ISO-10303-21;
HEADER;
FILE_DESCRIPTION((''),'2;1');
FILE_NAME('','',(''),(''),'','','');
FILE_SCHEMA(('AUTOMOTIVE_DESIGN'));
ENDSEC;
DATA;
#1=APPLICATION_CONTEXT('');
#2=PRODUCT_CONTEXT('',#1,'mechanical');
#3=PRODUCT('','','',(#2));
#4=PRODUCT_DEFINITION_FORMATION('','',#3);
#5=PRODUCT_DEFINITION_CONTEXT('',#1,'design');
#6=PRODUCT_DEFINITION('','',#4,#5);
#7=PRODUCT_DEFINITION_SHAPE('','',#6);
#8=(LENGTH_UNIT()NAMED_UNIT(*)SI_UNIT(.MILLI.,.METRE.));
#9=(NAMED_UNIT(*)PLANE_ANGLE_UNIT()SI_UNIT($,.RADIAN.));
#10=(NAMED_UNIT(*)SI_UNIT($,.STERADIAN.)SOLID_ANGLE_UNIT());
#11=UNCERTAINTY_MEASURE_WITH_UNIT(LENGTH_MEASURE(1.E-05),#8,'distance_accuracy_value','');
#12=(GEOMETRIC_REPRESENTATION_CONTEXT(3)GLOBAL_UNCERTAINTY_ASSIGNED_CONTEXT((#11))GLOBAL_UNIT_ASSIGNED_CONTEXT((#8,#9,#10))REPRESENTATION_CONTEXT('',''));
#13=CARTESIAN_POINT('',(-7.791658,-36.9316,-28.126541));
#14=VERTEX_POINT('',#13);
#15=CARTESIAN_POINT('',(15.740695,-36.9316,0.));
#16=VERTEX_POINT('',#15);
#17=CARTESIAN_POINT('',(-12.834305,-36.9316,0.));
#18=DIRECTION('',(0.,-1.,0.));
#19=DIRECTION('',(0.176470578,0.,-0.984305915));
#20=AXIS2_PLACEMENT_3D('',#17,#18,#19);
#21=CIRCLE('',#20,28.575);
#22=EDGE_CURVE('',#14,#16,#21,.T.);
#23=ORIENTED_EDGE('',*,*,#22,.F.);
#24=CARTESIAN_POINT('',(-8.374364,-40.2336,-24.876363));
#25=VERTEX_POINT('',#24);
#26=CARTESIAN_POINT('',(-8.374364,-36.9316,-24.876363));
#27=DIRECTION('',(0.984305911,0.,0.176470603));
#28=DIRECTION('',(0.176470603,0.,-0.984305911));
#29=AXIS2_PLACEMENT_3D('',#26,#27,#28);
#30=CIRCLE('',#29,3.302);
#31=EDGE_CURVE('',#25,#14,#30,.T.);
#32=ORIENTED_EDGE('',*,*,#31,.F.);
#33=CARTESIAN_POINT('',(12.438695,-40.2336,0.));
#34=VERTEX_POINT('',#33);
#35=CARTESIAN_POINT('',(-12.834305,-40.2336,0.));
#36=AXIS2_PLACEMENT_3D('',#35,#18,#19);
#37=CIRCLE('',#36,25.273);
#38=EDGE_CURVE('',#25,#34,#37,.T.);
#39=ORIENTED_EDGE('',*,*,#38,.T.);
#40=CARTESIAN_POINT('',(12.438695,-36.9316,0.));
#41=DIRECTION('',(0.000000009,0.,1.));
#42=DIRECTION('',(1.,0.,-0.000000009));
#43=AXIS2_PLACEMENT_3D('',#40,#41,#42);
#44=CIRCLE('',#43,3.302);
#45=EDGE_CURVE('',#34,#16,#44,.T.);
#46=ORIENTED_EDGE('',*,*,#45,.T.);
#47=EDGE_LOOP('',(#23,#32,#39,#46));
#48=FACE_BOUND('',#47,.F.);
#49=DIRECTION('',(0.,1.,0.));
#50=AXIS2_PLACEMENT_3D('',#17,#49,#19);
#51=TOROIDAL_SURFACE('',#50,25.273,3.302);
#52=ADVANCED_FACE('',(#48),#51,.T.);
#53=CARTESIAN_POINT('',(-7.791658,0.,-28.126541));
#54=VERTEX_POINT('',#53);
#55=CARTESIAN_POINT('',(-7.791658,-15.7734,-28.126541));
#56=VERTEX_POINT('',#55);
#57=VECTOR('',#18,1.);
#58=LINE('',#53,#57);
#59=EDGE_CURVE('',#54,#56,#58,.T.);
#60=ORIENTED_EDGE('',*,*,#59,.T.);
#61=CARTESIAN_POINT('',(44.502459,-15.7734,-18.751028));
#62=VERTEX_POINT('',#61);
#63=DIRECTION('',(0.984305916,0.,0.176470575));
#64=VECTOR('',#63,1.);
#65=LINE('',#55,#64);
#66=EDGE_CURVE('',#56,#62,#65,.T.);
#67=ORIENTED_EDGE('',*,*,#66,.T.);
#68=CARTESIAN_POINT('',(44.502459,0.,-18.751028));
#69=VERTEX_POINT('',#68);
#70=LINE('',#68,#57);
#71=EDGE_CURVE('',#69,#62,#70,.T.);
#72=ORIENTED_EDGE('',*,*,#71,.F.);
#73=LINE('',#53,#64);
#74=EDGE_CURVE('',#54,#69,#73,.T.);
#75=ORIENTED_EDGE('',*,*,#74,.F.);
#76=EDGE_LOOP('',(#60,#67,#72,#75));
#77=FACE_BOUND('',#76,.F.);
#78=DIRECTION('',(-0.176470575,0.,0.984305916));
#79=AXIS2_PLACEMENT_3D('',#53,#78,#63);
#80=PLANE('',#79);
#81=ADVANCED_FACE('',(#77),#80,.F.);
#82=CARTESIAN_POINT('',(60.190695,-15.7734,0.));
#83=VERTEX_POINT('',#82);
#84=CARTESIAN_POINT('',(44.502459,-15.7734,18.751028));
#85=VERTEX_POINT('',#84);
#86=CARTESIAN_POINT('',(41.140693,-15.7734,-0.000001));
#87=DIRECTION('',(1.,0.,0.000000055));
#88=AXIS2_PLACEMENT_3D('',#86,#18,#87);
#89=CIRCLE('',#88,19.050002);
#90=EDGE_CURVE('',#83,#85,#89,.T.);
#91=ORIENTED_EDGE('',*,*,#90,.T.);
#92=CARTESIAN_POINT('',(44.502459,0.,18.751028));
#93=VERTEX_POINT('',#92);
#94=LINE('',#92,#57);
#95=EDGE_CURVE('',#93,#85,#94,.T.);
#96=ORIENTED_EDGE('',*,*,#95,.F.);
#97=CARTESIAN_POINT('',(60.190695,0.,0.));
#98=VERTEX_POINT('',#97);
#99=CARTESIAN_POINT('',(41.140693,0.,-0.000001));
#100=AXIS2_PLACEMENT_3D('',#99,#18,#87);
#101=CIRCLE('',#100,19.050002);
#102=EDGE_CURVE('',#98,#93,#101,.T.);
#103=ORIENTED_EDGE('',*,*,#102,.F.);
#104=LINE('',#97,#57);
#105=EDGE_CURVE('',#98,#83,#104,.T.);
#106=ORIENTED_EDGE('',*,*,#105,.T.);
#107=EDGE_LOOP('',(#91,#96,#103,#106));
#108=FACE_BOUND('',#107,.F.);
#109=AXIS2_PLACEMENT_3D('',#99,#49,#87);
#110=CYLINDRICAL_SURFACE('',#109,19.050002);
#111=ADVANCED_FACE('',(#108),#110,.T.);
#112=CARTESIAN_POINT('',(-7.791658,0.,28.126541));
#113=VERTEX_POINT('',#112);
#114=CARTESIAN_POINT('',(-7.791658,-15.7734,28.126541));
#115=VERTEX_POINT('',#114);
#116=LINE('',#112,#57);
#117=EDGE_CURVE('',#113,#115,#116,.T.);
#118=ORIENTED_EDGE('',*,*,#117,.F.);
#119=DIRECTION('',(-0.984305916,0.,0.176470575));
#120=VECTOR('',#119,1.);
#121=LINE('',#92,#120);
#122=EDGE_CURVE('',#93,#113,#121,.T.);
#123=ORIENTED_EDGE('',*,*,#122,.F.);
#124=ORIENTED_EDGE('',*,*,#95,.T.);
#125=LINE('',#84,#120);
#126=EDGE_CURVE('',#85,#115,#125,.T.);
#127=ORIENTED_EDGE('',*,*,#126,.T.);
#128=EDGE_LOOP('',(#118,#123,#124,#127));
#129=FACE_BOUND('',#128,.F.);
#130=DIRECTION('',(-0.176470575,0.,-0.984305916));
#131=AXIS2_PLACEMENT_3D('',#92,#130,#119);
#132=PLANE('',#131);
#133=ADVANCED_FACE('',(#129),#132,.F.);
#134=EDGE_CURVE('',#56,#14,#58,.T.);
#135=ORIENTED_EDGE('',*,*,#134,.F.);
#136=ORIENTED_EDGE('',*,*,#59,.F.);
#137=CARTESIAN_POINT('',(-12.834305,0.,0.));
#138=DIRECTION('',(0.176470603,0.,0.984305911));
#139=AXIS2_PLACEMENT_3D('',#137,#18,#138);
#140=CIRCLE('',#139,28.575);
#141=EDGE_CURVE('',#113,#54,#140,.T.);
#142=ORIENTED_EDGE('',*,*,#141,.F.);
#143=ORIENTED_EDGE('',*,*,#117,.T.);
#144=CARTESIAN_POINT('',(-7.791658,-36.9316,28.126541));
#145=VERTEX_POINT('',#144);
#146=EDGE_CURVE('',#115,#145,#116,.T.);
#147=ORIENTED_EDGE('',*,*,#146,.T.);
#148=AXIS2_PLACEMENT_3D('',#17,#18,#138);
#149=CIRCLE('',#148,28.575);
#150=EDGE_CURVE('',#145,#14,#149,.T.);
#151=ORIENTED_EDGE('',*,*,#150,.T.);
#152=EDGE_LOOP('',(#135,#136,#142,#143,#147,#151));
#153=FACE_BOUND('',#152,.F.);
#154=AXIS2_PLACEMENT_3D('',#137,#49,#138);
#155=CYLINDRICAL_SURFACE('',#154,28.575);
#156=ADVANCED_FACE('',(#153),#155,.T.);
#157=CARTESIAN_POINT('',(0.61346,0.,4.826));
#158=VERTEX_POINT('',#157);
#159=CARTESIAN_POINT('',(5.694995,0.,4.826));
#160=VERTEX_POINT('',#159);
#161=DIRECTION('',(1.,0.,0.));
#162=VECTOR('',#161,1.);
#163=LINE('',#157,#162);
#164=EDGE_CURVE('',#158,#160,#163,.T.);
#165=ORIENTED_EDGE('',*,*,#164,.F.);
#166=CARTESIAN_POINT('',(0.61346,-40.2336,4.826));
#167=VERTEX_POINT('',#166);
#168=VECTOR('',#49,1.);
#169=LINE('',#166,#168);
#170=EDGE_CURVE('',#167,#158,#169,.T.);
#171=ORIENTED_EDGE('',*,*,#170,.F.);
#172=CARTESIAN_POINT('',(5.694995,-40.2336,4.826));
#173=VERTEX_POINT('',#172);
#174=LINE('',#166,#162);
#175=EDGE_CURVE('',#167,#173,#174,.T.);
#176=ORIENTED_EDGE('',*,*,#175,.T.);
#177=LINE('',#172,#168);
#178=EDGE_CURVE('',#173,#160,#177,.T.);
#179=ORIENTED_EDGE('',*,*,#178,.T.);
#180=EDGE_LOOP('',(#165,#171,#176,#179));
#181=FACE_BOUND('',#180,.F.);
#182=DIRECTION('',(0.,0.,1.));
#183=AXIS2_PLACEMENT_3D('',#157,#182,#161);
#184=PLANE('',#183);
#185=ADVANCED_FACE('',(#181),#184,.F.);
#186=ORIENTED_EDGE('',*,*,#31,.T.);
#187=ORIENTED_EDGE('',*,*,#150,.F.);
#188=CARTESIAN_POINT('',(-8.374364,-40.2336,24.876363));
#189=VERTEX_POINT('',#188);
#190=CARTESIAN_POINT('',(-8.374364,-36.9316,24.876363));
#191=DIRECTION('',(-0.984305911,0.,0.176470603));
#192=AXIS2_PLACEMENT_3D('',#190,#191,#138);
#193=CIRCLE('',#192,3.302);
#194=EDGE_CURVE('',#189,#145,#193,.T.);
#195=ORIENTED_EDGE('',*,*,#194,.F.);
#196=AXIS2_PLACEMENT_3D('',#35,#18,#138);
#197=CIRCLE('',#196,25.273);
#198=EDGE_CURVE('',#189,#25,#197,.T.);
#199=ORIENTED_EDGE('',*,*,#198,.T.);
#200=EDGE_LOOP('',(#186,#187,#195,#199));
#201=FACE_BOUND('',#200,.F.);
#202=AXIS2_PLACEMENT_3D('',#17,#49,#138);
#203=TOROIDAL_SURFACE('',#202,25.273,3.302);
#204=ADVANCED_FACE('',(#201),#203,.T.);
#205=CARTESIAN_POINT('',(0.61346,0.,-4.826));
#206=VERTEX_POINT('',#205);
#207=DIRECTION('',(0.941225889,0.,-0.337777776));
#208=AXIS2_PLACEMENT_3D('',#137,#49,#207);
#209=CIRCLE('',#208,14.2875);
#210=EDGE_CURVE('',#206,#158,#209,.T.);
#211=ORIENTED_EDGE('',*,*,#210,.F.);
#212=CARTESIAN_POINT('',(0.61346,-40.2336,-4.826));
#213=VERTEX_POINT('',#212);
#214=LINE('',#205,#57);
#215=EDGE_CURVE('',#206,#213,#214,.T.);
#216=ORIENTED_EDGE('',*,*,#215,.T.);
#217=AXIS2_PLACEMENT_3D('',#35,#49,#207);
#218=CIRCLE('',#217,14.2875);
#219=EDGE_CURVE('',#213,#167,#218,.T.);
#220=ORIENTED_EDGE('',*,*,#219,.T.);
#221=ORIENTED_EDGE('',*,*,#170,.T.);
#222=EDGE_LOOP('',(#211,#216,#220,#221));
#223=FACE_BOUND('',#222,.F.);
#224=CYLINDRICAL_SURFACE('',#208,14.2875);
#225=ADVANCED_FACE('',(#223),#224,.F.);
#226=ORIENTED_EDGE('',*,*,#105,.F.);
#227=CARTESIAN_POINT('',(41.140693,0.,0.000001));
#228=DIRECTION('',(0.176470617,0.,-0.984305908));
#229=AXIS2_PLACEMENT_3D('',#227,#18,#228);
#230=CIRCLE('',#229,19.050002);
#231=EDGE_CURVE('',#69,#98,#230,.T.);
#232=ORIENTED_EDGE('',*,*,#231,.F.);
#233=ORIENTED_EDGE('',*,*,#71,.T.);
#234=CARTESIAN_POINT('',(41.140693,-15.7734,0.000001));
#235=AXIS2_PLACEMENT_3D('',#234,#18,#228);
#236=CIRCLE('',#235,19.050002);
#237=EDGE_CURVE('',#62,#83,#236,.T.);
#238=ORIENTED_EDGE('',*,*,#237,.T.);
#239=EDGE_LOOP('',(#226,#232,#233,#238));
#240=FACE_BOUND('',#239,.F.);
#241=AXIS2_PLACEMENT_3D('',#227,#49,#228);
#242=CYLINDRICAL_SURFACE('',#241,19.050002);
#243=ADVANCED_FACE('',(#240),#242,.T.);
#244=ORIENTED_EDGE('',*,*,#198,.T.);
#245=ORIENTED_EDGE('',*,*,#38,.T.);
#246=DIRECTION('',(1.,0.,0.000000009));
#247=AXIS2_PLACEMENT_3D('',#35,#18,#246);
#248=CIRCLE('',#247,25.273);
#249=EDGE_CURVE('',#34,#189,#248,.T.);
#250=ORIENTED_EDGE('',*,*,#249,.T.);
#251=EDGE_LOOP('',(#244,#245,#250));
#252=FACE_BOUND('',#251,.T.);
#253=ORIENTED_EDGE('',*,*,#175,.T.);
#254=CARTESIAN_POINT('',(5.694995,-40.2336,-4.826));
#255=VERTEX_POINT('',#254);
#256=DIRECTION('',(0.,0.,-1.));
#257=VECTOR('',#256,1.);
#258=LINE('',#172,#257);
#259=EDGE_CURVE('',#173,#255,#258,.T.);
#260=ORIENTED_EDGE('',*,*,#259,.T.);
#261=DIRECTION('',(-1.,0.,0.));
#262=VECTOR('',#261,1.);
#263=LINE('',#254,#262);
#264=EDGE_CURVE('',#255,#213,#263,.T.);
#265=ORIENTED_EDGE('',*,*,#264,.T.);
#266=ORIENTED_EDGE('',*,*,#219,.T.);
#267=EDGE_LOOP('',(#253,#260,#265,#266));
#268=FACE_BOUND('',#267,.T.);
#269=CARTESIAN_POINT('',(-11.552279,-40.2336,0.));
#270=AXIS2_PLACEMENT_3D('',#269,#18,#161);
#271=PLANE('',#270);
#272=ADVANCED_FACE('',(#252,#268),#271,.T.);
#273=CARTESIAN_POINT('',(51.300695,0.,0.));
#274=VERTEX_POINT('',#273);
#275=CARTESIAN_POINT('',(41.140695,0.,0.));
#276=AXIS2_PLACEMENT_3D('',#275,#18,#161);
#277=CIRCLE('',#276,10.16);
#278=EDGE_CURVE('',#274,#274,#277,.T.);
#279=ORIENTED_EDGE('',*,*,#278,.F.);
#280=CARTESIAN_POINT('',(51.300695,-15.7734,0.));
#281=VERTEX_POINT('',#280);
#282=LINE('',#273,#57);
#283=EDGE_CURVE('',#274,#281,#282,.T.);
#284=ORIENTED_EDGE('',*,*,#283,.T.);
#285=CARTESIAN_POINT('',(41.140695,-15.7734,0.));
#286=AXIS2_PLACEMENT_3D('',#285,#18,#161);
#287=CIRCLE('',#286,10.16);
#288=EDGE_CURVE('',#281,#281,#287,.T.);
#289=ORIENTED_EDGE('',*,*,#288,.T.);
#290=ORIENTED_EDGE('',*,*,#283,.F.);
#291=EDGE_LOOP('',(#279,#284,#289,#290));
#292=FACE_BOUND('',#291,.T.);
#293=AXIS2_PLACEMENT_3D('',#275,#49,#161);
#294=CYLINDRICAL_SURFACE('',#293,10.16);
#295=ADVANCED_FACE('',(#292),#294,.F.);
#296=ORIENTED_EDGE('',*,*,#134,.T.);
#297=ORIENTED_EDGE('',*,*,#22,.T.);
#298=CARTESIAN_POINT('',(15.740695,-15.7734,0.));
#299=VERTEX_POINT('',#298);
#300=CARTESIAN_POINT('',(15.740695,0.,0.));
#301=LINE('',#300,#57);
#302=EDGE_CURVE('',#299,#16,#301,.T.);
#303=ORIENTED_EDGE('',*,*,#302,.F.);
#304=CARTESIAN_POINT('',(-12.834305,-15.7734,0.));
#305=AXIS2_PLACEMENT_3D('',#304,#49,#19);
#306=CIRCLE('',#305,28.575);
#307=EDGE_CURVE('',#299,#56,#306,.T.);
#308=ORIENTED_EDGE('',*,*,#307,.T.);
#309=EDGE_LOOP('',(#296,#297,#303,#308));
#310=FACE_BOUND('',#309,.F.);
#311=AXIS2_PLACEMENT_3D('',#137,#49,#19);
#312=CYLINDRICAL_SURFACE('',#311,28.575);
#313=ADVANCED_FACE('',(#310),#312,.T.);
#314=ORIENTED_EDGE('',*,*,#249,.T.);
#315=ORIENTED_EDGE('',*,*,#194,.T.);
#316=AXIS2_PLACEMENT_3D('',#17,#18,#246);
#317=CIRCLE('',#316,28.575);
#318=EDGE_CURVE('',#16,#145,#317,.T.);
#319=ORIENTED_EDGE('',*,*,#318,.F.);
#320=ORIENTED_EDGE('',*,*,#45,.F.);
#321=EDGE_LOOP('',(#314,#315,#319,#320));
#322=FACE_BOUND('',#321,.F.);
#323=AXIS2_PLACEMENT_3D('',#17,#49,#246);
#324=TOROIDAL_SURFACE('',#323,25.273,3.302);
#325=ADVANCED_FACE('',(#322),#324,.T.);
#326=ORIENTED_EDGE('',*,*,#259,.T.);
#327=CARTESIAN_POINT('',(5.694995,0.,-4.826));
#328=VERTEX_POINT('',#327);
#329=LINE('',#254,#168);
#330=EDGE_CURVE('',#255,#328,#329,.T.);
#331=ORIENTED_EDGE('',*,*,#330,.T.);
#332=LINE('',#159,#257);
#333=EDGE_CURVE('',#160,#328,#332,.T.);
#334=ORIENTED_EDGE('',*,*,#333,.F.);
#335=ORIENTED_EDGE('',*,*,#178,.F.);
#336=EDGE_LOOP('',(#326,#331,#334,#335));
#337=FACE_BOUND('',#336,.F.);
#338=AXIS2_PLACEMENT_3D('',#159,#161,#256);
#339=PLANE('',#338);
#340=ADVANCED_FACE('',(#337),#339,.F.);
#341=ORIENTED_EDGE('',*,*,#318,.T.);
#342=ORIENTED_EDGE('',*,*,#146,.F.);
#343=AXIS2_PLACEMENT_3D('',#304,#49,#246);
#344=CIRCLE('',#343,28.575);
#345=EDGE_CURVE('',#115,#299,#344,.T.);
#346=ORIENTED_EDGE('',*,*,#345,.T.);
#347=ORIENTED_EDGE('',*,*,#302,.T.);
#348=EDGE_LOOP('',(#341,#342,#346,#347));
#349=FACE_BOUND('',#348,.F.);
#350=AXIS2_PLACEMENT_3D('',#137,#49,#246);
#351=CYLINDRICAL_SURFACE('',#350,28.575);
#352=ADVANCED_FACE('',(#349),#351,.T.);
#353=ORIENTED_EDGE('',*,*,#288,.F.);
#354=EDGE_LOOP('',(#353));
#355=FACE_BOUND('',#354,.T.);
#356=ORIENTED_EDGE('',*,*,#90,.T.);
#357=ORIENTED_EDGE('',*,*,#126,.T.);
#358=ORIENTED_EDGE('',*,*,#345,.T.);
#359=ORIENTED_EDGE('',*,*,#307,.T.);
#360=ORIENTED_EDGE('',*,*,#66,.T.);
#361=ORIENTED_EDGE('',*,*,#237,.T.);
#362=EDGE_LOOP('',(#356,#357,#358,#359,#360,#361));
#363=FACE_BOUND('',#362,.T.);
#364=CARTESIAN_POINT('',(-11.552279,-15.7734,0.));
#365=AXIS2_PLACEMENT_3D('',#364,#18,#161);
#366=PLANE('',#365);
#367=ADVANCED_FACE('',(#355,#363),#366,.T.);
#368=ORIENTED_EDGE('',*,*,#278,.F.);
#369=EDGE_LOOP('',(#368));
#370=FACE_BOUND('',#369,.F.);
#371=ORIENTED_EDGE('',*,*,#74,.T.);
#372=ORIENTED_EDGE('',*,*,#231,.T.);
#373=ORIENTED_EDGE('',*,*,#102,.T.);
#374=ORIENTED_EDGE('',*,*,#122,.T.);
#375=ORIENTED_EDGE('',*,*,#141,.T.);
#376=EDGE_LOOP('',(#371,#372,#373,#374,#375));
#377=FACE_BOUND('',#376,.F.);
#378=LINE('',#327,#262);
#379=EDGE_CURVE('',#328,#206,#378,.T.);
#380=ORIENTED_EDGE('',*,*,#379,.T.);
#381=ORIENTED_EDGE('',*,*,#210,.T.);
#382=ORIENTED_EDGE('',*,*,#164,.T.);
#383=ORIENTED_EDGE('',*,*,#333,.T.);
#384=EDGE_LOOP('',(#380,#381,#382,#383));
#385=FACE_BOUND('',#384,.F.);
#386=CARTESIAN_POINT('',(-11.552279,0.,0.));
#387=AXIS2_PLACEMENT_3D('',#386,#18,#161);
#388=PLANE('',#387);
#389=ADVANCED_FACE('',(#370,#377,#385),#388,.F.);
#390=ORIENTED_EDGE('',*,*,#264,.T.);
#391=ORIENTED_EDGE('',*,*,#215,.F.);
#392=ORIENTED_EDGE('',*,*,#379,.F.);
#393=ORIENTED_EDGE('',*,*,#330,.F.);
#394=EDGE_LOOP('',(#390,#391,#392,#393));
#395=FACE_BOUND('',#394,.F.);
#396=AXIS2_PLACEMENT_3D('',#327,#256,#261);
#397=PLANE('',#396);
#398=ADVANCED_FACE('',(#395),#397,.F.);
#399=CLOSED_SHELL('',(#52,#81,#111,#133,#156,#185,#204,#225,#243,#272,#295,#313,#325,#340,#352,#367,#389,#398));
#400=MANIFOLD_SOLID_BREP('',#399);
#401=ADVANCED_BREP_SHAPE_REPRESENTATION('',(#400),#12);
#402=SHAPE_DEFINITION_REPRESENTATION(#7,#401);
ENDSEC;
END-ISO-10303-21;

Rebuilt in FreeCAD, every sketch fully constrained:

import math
import FreeCAD as App
import Part
import Sketcher

V = App.Vector
Q = App.Units.Quantity


def edges_at(feature, points):
    """Names of the edges that pass closest to the given points."""
    edges = feature.Shape.Edges
    near = lambda p: min(range(len(edges)), key=lambda i: edges[i].distToShape(Part.Vertex(*p))[0])
    return sorted({f"Edge{near(p) + 1}" for p in points})

doc = App.newDocument("Part")
body = doc.addObject("PartDesign::Body", "Body")

# Sketch on XZ plane
sketch1 = body.newObject("Sketcher::SketchObject", "Sketch")
sketch1.AttachmentSupport = (doc.getObject("XZ_Plane"), [""])
sketch1.MapMode = "FlatFace"
sketch1.addGeometry(Part.ArcOfCircle(Part.Circle(V(-13, 0, 0), V(0, 0, 1), 29), math.radians(-80), math.radians(0)), False)
sketch1.addGeometry(Part.ArcOfCircle(Part.Circle(V(-13, 0, 0), V(0, 0, 1), 29), math.radians(0), math.radians(80)), False)
sketch1.addGeometry(Part.ArcOfCircle(Part.Circle(V(-13, 0, 0), V(0, 0, 1), 29), math.radians(80), math.radians(280)), False)
sketch1.addGeometry(Part.LineSegment(V(6, -5, 0), V(1, -5, 0)), False)
sketch1.addGeometry(Part.ArcOfCircle(Part.Circle(V(-13, 0, 0), V(0, 0, 1), 14), math.radians(20), math.radians(340)), False)
sketch1.addGeometry(Part.LineSegment(V(1, 5, 0), V(6, 5, 0)), False)
sketch1.addGeometry(Part.LineSegment(V(6, 5, 0), V(6, -5, 0)), False)
sketch1.addConstraint(Sketcher.Constraint("Tangent", 0, 2, 1, 1))
sketch1.addConstraint(Sketcher.Constraint("Tangent", 1, 2, 2, 1))
sketch1.addConstraint(Sketcher.Constraint("Tangent", 2, 2, 0, 1))
sketch1.addConstraint(Sketcher.Constraint("Coincident", 3, 2, 4, 2))
sketch1.addConstraint(Sketcher.Constraint("Coincident", 4, 1, 5, 1))
sketch1.addConstraint(Sketcher.Constraint("Coincident", 5, 2, 6, 1))
sketch1.addConstraint(Sketcher.Constraint("Coincident", 6, 2, 3, 1))
sketch1.addConstraint(Sketcher.Constraint("Horizontal", 3))
sketch1.addConstraint(Sketcher.Constraint("Horizontal", 5))
sketch1.addConstraint(Sketcher.Constraint("Vertical", 6))
sketch1.addConstraint(Sketcher.Constraint("Coincident", 4, 3, 0, 3))
sketch1.addConstraint(Sketcher.Constraint("Symmetric", 1, 2, 2, 2, -1))
sketch1.addConstraint(Sketcher.Constraint("PointOnObject", 0, 2, -1))
sketch1.addConstraint(Sketcher.Constraint("Vertical", 3, 2, 4, 1))
sketch1.addConstraint(Sketcher.Constraint("Radius", 0, Q("1.125 in")))
sketch1.addConstraint(Sketcher.Constraint("Radius", 4, Q("0.5625 in")))
sketch1.addConstraint(Sketcher.Constraint("DistanceY", 6, 2, 6, 1, Q("0.38 in")))
sketch1.addConstraint(Sketcher.Constraint("DistanceX", 5, 2, 0, 2, Q("0.3955 in")))
sketch1.addConstraint(Sketcher.Constraint("DistanceX", 1, 2, -1, 1, Q("7.791658 mm")))
sketch1.addConstraint(Sketcher.Constraint("DistanceY", -1, 1, 1, 2, Q("28.126541 mm")))
pad1 = body.newObject("PartDesign::Pad", "Pad")
pad1.Profile = sketch1
pad1.Length = Q("1.584 in")

# Sketch on XZ plane
sketch2 = body.newObject("Sketcher::SketchObject", "Sketch001")
sketch2.AttachmentSupport = (doc.getObject("XZ_Plane"), [""])
sketch2.MapMode = "FlatFace"
sketch2.addGeometry(Part.ArcOfCircle(Part.Circle(V(-13, 0, 0), V(0, 0, 1), 29), math.radians(80), math.radians(280)), False)
sketch2.addGeometry(Part.LineSegment(V(-8, -28, 0), V(45, -19, 0)), False)
sketch2.addGeometry(Part.ArcOfCircle(Part.Circle(V(41, 0, 0), V(0, 0, 1), 19), math.radians(-80), math.radians(0)), False)
sketch2.addGeometry(Part.ArcOfCircle(Part.Circle(V(41, 0, 0), V(0, 0, 1), 19), math.radians(0), math.radians(80)), False)
sketch2.addGeometry(Part.LineSegment(V(45, 19, 0), V(-8, 28, 0)), False)
sketch2.addGeometry(Part.LineSegment(V(6, -5, 0), V(1, -5, 0)), False)
sketch2.addGeometry(Part.ArcOfCircle(Part.Circle(V(-13, 0, 0), V(0, 0, 1), 14), math.radians(20), math.radians(340)), False)
sketch2.addGeometry(Part.LineSegment(V(1, 5, 0), V(6, 5, 0)), False)
sketch2.addGeometry(Part.LineSegment(V(6, 5, 0), V(6, -5, 0)), False)
sketch2.addGeometry(Part.Circle(V(41, 0, 0), V(0, 0, 1), 10), False)
sketch2.addConstraint(Sketcher.Constraint("Tangent", 0, 2, 1, 1))
sketch2.addConstraint(Sketcher.Constraint("Tangent", 1, 2, 2, 1))
sketch2.addConstraint(Sketcher.Constraint("Tangent", 2, 2, 3, 1))
sketch2.addConstraint(Sketcher.Constraint("Tangent", 3, 2, 4, 1))
sketch2.addConstraint(Sketcher.Constraint("Tangent", 4, 2, 0, 1))
sketch2.addConstraint(Sketcher.Constraint("Coincident", 5, 2, 6, 2))
sketch2.addConstraint(Sketcher.Constraint("Coincident", 6, 1, 7, 1))
sketch2.addConstraint(Sketcher.Constraint("Coincident", 7, 2, 8, 1))
sketch2.addConstraint(Sketcher.Constraint("Coincident", 8, 2, 5, 1))
sketch2.addConstraint(Sketcher.Constraint("Horizontal", 5))
sketch2.addConstraint(Sketcher.Constraint("Horizontal", 7))
sketch2.addConstraint(Sketcher.Constraint("Vertical", 8))
sketch2.addConstraint(Sketcher.Constraint("Coincident", 6, 3, 0, 3))
sketch2.addConstraint(Sketcher.Constraint("Coincident", 9, 3, 2, 3))
sketch2.addConstraint(Sketcher.Constraint("Equal", 2, 3))
sketch2.addConstraint(Sketcher.Constraint("Symmetric", 1, 2, 3, 2, -1))
sketch2.addConstraint(Sketcher.Constraint("PointOnObject", 2, 2, -1))
sketch2.addConstraint(Sketcher.Constraint("Vertical", 5, 2, 6, 1))
sketch2.addConstraint(Sketcher.Constraint("Diameter", 9, Q("0.8 in")))
sketch2.addConstraint(Sketcher.Constraint("Radius", 2, Q("0.7500001 in")))
sketch2.addConstraint(Sketcher.Constraint("Radius", 0, Q("1.125 in")))
sketch2.addConstraint(Sketcher.Constraint("Radius", 6, Q("0.5625 in")))
sketch2.addConstraint(Sketcher.Constraint("DistanceY", 8, 2, 8, 1, Q("0.38 in")))
sketch2.addConstraint(Sketcher.Constraint("DistanceX", 0, 3, 2, 3, Q("2.125 in")))
sketch2.addConstraint(Sketcher.Constraint("DistanceX", 6, 3, 7, 2, Q("0.7295 in")))
sketch2.addConstraint(Sketcher.Constraint("DistanceX", 0, 2, -1, 1, Q("7.791658 mm")))
pad2 = body.newObject("PartDesign::Pad", "Pad001")
pad2.Profile = sketch2
pad2.Length = Q("0.621 in")
doc.recompute()

fillet = body.newObject("PartDesign::Fillet", "Fillet")
fillet.Base = (pad2, edges_at(pad2, [(-41.409, -40.234, 0)]))
fillet.Radius = Q("0.13 in")

doc.recompute()
